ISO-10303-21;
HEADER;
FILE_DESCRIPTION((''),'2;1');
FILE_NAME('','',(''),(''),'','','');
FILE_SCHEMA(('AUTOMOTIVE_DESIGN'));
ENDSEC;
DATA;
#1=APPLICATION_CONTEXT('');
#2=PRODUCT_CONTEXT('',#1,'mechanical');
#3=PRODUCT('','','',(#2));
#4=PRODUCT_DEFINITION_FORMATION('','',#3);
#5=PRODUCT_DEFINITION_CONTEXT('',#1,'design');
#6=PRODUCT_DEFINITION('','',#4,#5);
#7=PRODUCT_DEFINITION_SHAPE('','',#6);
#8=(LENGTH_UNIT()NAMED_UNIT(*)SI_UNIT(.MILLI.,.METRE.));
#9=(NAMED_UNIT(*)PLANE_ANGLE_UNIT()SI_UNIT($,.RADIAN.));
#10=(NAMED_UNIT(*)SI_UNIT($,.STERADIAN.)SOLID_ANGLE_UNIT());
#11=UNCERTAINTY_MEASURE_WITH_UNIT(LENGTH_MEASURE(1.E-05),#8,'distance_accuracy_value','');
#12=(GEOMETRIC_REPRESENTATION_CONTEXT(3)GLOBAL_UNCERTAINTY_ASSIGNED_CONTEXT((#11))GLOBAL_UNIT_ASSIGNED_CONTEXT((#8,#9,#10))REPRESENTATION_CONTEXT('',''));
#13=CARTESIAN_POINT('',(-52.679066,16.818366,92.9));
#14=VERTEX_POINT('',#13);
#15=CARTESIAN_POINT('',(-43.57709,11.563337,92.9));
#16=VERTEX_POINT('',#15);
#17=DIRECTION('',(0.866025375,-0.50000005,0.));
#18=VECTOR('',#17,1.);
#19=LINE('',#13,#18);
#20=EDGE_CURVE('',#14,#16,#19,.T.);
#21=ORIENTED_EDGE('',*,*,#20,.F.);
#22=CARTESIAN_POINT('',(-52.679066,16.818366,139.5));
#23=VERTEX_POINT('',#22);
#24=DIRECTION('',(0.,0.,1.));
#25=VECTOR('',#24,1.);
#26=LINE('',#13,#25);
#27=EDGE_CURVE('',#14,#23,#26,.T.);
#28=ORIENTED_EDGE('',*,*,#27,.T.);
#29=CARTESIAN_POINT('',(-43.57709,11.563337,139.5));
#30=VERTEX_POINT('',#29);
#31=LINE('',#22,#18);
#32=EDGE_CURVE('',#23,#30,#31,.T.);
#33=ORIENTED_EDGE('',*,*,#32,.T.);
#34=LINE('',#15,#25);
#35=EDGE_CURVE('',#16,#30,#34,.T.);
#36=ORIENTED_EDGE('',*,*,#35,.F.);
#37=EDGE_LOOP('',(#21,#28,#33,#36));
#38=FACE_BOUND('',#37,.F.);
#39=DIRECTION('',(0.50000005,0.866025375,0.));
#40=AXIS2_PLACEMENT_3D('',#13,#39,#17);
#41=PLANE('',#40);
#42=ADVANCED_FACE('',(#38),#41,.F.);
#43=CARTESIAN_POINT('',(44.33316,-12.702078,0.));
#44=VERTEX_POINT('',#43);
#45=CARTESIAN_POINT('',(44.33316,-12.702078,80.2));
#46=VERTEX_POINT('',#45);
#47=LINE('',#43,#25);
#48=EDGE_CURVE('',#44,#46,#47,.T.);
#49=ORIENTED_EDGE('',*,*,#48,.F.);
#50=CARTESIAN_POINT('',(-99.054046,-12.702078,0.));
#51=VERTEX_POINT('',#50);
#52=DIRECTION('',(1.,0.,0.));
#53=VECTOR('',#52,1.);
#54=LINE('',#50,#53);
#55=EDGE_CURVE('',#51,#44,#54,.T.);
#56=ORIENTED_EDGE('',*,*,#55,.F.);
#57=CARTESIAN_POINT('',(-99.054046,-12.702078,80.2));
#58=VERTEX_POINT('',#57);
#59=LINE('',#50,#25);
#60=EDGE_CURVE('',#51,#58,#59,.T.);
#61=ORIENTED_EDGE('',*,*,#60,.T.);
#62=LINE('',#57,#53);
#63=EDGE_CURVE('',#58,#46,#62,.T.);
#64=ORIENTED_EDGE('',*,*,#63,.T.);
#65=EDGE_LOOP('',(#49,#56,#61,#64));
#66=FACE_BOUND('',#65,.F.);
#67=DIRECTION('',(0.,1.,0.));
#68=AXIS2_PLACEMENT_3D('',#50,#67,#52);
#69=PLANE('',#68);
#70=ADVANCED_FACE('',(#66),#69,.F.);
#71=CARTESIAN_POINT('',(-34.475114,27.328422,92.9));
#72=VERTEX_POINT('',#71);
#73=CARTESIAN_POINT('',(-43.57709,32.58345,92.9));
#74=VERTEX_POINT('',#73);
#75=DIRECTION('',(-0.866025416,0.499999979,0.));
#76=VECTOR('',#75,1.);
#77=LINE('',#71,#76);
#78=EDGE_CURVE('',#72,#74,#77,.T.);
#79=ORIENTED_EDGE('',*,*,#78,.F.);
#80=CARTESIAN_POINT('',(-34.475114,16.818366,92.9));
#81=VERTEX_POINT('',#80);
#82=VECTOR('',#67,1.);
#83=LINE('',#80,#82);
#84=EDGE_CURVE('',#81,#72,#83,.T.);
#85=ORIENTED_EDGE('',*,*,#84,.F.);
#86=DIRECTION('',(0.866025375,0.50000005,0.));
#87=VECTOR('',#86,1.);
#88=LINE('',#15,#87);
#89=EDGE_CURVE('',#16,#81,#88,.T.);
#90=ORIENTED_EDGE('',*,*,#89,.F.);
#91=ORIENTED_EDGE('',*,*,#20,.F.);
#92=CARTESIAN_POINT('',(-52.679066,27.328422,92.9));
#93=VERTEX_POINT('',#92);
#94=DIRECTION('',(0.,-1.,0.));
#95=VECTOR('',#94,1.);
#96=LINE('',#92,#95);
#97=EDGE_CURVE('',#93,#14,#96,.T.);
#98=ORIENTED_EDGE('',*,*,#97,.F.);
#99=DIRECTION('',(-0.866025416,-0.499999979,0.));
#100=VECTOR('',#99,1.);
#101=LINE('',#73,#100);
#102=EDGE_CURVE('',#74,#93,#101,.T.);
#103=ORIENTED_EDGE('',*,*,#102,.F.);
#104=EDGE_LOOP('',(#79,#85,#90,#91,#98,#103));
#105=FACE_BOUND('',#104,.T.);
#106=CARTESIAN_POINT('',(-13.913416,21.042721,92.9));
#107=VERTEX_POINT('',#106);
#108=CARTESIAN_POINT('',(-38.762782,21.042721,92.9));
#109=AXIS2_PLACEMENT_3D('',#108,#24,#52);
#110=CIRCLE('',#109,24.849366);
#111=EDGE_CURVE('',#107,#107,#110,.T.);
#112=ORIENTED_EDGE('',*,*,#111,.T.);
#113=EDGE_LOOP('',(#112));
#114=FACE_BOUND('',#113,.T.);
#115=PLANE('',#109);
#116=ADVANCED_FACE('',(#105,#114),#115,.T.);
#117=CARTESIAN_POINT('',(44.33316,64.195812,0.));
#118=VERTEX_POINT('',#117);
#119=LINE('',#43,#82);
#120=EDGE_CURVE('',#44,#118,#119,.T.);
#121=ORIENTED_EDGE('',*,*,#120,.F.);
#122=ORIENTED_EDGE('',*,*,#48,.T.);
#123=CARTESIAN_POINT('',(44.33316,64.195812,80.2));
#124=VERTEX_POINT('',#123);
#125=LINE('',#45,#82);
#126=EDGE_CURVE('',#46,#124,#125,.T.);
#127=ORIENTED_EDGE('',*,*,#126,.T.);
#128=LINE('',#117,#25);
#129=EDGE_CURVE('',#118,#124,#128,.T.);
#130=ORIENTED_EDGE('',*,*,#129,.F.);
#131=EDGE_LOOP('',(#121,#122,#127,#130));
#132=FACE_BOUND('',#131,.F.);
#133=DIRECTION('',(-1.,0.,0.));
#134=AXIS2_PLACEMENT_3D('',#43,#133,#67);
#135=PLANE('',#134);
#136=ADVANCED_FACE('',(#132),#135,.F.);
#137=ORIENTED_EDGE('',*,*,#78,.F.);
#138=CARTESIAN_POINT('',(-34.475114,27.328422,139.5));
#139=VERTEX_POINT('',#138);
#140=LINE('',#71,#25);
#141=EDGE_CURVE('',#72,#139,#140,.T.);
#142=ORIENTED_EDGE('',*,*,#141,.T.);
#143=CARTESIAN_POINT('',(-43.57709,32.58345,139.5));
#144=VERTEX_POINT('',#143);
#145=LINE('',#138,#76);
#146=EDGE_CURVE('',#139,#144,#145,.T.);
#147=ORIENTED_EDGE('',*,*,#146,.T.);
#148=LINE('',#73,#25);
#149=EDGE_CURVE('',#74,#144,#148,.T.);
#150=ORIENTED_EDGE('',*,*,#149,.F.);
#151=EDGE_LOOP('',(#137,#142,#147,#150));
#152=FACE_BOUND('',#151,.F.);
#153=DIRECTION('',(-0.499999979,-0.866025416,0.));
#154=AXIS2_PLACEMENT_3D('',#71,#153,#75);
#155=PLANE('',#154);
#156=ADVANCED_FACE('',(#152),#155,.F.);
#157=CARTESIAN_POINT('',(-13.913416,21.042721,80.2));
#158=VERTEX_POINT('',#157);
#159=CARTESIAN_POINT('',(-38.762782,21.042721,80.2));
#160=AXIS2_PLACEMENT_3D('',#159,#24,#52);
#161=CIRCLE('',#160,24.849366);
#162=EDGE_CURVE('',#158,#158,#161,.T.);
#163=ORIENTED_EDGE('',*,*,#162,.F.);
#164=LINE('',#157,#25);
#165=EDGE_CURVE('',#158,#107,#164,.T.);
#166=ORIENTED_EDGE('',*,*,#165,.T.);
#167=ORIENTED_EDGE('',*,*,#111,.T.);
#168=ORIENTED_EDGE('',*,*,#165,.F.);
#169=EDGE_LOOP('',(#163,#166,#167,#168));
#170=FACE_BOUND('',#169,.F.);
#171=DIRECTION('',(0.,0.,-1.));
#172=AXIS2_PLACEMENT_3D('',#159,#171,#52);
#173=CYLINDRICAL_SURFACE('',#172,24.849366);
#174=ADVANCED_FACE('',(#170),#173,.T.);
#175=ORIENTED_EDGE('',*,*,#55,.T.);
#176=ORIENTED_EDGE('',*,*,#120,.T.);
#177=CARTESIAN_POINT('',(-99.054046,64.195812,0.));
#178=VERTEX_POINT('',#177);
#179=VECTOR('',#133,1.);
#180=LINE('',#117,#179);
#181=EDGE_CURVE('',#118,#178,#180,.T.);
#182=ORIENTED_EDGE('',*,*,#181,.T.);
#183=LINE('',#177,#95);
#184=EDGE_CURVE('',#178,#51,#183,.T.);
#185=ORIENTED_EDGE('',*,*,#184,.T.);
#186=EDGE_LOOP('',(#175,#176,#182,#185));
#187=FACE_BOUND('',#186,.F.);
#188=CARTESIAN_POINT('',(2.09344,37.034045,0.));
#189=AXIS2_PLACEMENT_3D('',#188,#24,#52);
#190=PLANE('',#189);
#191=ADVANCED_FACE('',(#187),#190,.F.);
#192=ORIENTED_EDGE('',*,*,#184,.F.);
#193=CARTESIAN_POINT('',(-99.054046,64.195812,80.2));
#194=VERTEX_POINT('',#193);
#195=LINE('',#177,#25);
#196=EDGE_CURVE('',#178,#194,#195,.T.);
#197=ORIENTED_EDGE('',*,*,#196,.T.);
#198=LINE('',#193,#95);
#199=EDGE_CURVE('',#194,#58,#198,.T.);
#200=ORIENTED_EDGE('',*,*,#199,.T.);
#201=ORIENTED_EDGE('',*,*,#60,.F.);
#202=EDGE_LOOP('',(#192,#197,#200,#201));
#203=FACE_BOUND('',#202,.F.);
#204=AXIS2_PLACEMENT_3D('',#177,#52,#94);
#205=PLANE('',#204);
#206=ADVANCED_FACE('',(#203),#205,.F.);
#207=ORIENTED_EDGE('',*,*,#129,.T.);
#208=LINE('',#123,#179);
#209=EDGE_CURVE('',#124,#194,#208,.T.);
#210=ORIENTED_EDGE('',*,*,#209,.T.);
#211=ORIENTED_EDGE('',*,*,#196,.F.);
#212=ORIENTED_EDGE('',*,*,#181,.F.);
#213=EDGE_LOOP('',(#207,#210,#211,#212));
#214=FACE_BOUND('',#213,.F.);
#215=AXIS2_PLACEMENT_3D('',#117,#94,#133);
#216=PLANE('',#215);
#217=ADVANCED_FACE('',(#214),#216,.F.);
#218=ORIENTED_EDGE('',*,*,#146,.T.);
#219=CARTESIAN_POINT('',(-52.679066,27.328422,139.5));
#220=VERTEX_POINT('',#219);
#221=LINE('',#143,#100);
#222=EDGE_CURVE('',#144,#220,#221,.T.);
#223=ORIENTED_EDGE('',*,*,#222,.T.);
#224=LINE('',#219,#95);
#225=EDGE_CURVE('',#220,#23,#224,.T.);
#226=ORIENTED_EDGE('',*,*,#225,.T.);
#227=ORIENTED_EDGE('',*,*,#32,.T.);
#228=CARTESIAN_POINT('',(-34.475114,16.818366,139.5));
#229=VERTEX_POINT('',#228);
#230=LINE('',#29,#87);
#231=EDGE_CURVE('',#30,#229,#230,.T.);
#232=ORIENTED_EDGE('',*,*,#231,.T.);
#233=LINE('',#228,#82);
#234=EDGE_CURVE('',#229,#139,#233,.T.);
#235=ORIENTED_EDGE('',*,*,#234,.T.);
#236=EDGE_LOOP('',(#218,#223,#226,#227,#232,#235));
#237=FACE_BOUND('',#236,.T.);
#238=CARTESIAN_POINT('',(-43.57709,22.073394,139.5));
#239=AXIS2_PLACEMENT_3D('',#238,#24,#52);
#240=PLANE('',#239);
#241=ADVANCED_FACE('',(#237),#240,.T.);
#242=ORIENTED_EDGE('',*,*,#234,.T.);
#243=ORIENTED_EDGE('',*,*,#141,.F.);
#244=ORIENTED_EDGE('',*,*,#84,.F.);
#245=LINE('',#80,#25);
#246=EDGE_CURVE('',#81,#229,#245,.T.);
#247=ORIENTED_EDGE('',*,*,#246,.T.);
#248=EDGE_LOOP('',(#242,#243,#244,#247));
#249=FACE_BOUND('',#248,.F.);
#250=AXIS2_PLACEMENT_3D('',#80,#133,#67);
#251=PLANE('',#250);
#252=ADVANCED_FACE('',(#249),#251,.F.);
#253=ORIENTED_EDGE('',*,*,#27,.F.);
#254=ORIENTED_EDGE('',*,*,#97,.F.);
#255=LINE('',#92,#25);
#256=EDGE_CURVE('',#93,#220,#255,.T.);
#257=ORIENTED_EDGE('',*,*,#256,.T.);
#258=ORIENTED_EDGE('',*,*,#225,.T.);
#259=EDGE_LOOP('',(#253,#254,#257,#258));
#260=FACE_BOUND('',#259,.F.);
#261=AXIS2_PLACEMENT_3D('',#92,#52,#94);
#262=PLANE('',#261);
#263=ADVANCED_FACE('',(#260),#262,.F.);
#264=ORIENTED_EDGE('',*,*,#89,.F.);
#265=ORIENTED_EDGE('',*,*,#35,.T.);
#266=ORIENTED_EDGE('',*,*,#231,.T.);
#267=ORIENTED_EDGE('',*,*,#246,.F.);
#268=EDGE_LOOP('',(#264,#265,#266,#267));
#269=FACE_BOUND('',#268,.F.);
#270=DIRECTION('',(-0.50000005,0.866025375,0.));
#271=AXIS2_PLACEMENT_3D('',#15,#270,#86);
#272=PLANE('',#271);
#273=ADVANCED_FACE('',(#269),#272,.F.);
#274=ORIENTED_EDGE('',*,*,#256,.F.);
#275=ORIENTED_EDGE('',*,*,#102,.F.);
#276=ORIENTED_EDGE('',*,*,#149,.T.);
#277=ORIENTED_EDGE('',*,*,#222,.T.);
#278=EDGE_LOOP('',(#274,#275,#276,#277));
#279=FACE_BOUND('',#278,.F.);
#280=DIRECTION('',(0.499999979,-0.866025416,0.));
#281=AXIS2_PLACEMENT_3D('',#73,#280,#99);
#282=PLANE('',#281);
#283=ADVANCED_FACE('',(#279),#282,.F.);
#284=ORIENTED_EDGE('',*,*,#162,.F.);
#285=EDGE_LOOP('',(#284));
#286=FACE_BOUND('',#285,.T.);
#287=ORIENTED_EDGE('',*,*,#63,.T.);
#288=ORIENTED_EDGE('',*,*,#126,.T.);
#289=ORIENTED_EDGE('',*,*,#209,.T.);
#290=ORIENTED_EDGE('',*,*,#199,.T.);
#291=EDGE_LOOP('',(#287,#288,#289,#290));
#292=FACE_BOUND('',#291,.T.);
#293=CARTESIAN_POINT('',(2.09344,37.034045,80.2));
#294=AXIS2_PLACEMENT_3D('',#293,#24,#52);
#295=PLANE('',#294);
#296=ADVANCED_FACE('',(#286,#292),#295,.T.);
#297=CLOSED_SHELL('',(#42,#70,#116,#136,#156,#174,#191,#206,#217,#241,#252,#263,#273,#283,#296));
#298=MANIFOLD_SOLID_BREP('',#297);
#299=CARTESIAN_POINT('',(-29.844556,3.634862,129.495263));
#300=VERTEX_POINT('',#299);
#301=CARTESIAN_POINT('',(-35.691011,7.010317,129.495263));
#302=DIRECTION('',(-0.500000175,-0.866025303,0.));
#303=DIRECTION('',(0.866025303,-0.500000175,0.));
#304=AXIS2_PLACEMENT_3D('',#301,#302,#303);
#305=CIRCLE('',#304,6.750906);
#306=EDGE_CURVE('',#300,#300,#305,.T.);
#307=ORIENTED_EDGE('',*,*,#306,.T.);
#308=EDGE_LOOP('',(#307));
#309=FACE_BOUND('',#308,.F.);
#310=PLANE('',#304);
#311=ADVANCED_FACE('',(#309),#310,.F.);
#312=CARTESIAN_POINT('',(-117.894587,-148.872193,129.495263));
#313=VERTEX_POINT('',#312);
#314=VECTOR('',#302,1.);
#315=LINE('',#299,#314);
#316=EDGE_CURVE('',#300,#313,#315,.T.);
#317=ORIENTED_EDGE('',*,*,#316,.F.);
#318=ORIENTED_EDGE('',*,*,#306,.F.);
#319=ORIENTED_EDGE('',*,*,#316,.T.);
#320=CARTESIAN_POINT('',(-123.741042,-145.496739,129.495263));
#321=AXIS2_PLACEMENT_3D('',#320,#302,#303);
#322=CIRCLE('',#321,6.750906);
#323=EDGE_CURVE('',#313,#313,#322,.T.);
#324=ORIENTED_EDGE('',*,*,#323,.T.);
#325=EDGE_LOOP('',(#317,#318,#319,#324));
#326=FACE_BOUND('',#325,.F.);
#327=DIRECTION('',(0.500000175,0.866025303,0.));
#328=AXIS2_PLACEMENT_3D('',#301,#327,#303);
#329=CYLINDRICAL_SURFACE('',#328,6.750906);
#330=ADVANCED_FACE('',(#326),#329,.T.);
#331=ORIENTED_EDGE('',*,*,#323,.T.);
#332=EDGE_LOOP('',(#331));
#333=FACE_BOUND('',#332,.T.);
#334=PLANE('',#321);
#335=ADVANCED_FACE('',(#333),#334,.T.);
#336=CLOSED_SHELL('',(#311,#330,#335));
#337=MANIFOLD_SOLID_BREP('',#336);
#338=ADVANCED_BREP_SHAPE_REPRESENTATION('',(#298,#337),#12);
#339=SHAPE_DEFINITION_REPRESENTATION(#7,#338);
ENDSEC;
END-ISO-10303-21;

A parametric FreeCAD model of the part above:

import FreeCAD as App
import Part
import Sketcher
from FreeCAD import Vector
Q = App.Units.Quantity

doc = App.newDocument("Part")
params = doc.addObject("Spreadsheet::Sheet", "Params")
for row, (alias, value) in enumerate([
    ("pad1_length", "80.2 mm"),
    ("pad2_length", "12.7 mm"),
    ("pad3_length", "46.6 mm"),
    ("pad4_length", "176.1 mm"),
], start=1):
    params.set(f"A{row}", alias)
    params.set(f"B{row}", "=" + value)
    params.setAlias(f"B{row}", alias)

body = doc.addObject("PartDesign::Body", "Body")

# Sketch on XY plane
sketch1 = doc.addObject("Sketcher::SketchObject", "Sketch")
body.addObject(sketch1)
sketch1.AttachmentSupport = (doc.XY_Plane, [""])
sketch1.MapMode = "FlatFace"
sketch1.addGeometry([
    Part.LineSegment(Vector(44, 64, 0), Vector(-99, 64, 0)),
    Part.LineSegment(Vector(-99, 64, 0), Vector(-99, -13, 0)),
    Part.LineSegment(Vector(-99, -13, 0), Vector(44, -13, 0)),
    Part.LineSegment(Vector(44, -13, 0), Vector(44, 64, 0)),
], False)
sketch1.addConstraint([
    Sketcher.Constraint("Coincident", 0, 2, 1, 1),
    Sketcher.Constraint("Coincident", 1, 2, 2, 1),
    Sketcher.Constraint("Coincident", 2, 2, 3, 1),
    Sketcher.Constraint("Coincident", 3, 2, 0, 1),
    Sketcher.Constraint("Horizontal", 0),
    Sketcher.Constraint("Vertical", 1),
    Sketcher.Constraint("Horizontal", 2),
    Sketcher.Constraint("Vertical", 3),
    Sketcher.Constraint("DistanceY", 1, 2, 1, 1, Q("76.89789 mm")),
    Sketcher.Constraint("DistanceX", 0, 2, 0, 1, Q("143.387206 mm")),
    Sketcher.Constraint("DistanceX", -1, 1, 2, 2, Q("44.33316 mm")),
    Sketcher.Constraint("DistanceY", -1, 1, 0, 2, Q("64.195812 mm")),
])
pad1 = doc.addObject("PartDesign::Pad", "Pad")
body.addObject(pad1)
pad1.Profile = sketch1
pad1.setExpression("Length", "Params.pad1_length")

# Sketch on XY plane
sketch2 = doc.addObject("Sketcher::SketchObject", "Sketch001")
body.addObject(sketch2)
sketch2.AttachmentSupport = (doc.XY_Plane, [""])
sketch2.MapMode = "FlatFace"
sketch2.AttachmentOffset = App.Placement(Vector(0, 0, 80.2), App.Rotation())
sketch2.addGeometry(Part.Circle(Vector(-39, 21, 0), Vector(0, 0, 1), 25), False)
sketch2.addConstraint([
    Sketcher.Constraint("Diameter", 0, Q("49.698732 mm")),
    Sketcher.Constraint("DistanceY", -1, 1, 0, 3, Q("21.042721 mm")),
    Sketcher.Constraint("DistanceX", 0, 3, -1, 1, Q("38.762782 mm")),
])
pad2 = doc.addObject("PartDesign::Pad", "Pad001")
body.addObject(pad2)
pad2.Profile = sketch2
pad2.setExpression("Length", "Params.pad2_length")

# Sketch on XY plane
sketch3 = doc.addObject("Sketcher::SketchObject", "Sketch002")
body.addObject(sketch3)
sketch3.AttachmentSupport = (doc.XY_Plane, [""])
sketch3.MapMode = "FlatFace"
sketch3.AttachmentOffset = App.Placement(Vector(0, 0, 92.9), App.Rotation())
sketch3.addGeometry([
    Part.LineSegment(Vector(-34, 17, 0), Vector(-34, 27, 0)),  # 0
    Part.LineSegment(Vector(-34, 27, 0), Vector(-44, 33, 0)),  # 1
    Part.LineSegment(Vector(-44, 33, 0), Vector(-53, 27, 0)),  # 2
    Part.LineSegment(Vector(-53, 27, 0), Vector(-53, 17, 0)),  # 3
    Part.LineSegment(Vector(-53, 17, 0), Vector(-44, 12, 0)),  # 4
    Part.LineSegment(Vector(-44, 12, 0), Vector(-34, 17, 0)),  # 5
], False)
sketch3.addConstraint([
    Sketcher.Constraint("Coincident", 0, 2, 1, 1),
    Sketcher.Constraint("Coincident", 1, 2, 2, 1),
    Sketcher.Constraint("Coincident", 2, 2, 3, 1),
    Sketcher.Constraint("Coincident", 3, 2, 4, 1),
    Sketcher.Constraint("Coincident", 4, 2, 5, 1),
    Sketcher.Constraint("Coincident", 5, 2, 0, 1),
    Sketcher.Constraint("Vertical", 0),
    Sketcher.Constraint("Vertical", 3),
    Sketcher.Constraint("Parallel", 1, 4),
    Sketcher.Constraint("Parallel", 2, 5),
    Sketcher.Constraint("Horizontal", 0, 2, 2, 2),
    Sketcher.Constraint("Horizontal", 3, 2, 5, 2),
    Sketcher.Constraint("Vertical", 1, 2, 4, 2),
    Sketcher.Constraint("Angle", 1, Q("150.000001 deg")),
    Sketcher.Constraint("DistanceY", 0, 1, 0, 2, Q("10.510056 mm")),
    Sketcher.Constraint("DistanceY", -1, 1, 0, 2, Q("27.328422 mm")),
    Sketcher.Constraint("DistanceX", 1, 2, -1, 1, Q("43.57709 mm")),
    Sketcher.Constraint("DistanceY", -1, 1, 1, 2, Q("32.58345 mm")),
])
pad3 = doc.addObject("PartDesign::Pad", "Pad002")
body.addObject(pad3)
pad3.Profile = sketch3
pad3.setExpression("Length", "Params.pad3_length")
body2 = doc.addObject("PartDesign::Body", "Body001")

# Sketch on an angled plane
sketch4 = doc.addObject("Sketcher::SketchObject", "Sketch003")
body2.addObject(sketch4)
sketch4.Placement = App.Placement(Vector(-5.8872, -10.19693, 0), App.Rotation(Vector(0.866025303, -0.500000175, 0), Vector(0, 0, 1), Vector(-0.500000175, -0.866025303, 0), "ZXY"))
sketch4.addGeometry(Part.Circle(Vector(-34, 129, 0), Vector(0, 0, 1), 7), False)
sketch4.addConstraint([
    Sketcher.Constraint("Diameter", 0, Q("13.501812 mm")),
    Sketcher.Constraint("DistanceX", 0, 3, -1, 1, Q("34.414481 mm")),
    Sketcher.Constraint("DistanceY", -1, 1, 0, 3, Q("129.495263 mm")),
])
pad4 = doc.addObject("PartDesign::Pad", "Pad003")
body2.addObject(pad4)
pad4.Profile = sketch4
pad4.setExpression("Length", "Params.pad4_length")

doc.recompute()
